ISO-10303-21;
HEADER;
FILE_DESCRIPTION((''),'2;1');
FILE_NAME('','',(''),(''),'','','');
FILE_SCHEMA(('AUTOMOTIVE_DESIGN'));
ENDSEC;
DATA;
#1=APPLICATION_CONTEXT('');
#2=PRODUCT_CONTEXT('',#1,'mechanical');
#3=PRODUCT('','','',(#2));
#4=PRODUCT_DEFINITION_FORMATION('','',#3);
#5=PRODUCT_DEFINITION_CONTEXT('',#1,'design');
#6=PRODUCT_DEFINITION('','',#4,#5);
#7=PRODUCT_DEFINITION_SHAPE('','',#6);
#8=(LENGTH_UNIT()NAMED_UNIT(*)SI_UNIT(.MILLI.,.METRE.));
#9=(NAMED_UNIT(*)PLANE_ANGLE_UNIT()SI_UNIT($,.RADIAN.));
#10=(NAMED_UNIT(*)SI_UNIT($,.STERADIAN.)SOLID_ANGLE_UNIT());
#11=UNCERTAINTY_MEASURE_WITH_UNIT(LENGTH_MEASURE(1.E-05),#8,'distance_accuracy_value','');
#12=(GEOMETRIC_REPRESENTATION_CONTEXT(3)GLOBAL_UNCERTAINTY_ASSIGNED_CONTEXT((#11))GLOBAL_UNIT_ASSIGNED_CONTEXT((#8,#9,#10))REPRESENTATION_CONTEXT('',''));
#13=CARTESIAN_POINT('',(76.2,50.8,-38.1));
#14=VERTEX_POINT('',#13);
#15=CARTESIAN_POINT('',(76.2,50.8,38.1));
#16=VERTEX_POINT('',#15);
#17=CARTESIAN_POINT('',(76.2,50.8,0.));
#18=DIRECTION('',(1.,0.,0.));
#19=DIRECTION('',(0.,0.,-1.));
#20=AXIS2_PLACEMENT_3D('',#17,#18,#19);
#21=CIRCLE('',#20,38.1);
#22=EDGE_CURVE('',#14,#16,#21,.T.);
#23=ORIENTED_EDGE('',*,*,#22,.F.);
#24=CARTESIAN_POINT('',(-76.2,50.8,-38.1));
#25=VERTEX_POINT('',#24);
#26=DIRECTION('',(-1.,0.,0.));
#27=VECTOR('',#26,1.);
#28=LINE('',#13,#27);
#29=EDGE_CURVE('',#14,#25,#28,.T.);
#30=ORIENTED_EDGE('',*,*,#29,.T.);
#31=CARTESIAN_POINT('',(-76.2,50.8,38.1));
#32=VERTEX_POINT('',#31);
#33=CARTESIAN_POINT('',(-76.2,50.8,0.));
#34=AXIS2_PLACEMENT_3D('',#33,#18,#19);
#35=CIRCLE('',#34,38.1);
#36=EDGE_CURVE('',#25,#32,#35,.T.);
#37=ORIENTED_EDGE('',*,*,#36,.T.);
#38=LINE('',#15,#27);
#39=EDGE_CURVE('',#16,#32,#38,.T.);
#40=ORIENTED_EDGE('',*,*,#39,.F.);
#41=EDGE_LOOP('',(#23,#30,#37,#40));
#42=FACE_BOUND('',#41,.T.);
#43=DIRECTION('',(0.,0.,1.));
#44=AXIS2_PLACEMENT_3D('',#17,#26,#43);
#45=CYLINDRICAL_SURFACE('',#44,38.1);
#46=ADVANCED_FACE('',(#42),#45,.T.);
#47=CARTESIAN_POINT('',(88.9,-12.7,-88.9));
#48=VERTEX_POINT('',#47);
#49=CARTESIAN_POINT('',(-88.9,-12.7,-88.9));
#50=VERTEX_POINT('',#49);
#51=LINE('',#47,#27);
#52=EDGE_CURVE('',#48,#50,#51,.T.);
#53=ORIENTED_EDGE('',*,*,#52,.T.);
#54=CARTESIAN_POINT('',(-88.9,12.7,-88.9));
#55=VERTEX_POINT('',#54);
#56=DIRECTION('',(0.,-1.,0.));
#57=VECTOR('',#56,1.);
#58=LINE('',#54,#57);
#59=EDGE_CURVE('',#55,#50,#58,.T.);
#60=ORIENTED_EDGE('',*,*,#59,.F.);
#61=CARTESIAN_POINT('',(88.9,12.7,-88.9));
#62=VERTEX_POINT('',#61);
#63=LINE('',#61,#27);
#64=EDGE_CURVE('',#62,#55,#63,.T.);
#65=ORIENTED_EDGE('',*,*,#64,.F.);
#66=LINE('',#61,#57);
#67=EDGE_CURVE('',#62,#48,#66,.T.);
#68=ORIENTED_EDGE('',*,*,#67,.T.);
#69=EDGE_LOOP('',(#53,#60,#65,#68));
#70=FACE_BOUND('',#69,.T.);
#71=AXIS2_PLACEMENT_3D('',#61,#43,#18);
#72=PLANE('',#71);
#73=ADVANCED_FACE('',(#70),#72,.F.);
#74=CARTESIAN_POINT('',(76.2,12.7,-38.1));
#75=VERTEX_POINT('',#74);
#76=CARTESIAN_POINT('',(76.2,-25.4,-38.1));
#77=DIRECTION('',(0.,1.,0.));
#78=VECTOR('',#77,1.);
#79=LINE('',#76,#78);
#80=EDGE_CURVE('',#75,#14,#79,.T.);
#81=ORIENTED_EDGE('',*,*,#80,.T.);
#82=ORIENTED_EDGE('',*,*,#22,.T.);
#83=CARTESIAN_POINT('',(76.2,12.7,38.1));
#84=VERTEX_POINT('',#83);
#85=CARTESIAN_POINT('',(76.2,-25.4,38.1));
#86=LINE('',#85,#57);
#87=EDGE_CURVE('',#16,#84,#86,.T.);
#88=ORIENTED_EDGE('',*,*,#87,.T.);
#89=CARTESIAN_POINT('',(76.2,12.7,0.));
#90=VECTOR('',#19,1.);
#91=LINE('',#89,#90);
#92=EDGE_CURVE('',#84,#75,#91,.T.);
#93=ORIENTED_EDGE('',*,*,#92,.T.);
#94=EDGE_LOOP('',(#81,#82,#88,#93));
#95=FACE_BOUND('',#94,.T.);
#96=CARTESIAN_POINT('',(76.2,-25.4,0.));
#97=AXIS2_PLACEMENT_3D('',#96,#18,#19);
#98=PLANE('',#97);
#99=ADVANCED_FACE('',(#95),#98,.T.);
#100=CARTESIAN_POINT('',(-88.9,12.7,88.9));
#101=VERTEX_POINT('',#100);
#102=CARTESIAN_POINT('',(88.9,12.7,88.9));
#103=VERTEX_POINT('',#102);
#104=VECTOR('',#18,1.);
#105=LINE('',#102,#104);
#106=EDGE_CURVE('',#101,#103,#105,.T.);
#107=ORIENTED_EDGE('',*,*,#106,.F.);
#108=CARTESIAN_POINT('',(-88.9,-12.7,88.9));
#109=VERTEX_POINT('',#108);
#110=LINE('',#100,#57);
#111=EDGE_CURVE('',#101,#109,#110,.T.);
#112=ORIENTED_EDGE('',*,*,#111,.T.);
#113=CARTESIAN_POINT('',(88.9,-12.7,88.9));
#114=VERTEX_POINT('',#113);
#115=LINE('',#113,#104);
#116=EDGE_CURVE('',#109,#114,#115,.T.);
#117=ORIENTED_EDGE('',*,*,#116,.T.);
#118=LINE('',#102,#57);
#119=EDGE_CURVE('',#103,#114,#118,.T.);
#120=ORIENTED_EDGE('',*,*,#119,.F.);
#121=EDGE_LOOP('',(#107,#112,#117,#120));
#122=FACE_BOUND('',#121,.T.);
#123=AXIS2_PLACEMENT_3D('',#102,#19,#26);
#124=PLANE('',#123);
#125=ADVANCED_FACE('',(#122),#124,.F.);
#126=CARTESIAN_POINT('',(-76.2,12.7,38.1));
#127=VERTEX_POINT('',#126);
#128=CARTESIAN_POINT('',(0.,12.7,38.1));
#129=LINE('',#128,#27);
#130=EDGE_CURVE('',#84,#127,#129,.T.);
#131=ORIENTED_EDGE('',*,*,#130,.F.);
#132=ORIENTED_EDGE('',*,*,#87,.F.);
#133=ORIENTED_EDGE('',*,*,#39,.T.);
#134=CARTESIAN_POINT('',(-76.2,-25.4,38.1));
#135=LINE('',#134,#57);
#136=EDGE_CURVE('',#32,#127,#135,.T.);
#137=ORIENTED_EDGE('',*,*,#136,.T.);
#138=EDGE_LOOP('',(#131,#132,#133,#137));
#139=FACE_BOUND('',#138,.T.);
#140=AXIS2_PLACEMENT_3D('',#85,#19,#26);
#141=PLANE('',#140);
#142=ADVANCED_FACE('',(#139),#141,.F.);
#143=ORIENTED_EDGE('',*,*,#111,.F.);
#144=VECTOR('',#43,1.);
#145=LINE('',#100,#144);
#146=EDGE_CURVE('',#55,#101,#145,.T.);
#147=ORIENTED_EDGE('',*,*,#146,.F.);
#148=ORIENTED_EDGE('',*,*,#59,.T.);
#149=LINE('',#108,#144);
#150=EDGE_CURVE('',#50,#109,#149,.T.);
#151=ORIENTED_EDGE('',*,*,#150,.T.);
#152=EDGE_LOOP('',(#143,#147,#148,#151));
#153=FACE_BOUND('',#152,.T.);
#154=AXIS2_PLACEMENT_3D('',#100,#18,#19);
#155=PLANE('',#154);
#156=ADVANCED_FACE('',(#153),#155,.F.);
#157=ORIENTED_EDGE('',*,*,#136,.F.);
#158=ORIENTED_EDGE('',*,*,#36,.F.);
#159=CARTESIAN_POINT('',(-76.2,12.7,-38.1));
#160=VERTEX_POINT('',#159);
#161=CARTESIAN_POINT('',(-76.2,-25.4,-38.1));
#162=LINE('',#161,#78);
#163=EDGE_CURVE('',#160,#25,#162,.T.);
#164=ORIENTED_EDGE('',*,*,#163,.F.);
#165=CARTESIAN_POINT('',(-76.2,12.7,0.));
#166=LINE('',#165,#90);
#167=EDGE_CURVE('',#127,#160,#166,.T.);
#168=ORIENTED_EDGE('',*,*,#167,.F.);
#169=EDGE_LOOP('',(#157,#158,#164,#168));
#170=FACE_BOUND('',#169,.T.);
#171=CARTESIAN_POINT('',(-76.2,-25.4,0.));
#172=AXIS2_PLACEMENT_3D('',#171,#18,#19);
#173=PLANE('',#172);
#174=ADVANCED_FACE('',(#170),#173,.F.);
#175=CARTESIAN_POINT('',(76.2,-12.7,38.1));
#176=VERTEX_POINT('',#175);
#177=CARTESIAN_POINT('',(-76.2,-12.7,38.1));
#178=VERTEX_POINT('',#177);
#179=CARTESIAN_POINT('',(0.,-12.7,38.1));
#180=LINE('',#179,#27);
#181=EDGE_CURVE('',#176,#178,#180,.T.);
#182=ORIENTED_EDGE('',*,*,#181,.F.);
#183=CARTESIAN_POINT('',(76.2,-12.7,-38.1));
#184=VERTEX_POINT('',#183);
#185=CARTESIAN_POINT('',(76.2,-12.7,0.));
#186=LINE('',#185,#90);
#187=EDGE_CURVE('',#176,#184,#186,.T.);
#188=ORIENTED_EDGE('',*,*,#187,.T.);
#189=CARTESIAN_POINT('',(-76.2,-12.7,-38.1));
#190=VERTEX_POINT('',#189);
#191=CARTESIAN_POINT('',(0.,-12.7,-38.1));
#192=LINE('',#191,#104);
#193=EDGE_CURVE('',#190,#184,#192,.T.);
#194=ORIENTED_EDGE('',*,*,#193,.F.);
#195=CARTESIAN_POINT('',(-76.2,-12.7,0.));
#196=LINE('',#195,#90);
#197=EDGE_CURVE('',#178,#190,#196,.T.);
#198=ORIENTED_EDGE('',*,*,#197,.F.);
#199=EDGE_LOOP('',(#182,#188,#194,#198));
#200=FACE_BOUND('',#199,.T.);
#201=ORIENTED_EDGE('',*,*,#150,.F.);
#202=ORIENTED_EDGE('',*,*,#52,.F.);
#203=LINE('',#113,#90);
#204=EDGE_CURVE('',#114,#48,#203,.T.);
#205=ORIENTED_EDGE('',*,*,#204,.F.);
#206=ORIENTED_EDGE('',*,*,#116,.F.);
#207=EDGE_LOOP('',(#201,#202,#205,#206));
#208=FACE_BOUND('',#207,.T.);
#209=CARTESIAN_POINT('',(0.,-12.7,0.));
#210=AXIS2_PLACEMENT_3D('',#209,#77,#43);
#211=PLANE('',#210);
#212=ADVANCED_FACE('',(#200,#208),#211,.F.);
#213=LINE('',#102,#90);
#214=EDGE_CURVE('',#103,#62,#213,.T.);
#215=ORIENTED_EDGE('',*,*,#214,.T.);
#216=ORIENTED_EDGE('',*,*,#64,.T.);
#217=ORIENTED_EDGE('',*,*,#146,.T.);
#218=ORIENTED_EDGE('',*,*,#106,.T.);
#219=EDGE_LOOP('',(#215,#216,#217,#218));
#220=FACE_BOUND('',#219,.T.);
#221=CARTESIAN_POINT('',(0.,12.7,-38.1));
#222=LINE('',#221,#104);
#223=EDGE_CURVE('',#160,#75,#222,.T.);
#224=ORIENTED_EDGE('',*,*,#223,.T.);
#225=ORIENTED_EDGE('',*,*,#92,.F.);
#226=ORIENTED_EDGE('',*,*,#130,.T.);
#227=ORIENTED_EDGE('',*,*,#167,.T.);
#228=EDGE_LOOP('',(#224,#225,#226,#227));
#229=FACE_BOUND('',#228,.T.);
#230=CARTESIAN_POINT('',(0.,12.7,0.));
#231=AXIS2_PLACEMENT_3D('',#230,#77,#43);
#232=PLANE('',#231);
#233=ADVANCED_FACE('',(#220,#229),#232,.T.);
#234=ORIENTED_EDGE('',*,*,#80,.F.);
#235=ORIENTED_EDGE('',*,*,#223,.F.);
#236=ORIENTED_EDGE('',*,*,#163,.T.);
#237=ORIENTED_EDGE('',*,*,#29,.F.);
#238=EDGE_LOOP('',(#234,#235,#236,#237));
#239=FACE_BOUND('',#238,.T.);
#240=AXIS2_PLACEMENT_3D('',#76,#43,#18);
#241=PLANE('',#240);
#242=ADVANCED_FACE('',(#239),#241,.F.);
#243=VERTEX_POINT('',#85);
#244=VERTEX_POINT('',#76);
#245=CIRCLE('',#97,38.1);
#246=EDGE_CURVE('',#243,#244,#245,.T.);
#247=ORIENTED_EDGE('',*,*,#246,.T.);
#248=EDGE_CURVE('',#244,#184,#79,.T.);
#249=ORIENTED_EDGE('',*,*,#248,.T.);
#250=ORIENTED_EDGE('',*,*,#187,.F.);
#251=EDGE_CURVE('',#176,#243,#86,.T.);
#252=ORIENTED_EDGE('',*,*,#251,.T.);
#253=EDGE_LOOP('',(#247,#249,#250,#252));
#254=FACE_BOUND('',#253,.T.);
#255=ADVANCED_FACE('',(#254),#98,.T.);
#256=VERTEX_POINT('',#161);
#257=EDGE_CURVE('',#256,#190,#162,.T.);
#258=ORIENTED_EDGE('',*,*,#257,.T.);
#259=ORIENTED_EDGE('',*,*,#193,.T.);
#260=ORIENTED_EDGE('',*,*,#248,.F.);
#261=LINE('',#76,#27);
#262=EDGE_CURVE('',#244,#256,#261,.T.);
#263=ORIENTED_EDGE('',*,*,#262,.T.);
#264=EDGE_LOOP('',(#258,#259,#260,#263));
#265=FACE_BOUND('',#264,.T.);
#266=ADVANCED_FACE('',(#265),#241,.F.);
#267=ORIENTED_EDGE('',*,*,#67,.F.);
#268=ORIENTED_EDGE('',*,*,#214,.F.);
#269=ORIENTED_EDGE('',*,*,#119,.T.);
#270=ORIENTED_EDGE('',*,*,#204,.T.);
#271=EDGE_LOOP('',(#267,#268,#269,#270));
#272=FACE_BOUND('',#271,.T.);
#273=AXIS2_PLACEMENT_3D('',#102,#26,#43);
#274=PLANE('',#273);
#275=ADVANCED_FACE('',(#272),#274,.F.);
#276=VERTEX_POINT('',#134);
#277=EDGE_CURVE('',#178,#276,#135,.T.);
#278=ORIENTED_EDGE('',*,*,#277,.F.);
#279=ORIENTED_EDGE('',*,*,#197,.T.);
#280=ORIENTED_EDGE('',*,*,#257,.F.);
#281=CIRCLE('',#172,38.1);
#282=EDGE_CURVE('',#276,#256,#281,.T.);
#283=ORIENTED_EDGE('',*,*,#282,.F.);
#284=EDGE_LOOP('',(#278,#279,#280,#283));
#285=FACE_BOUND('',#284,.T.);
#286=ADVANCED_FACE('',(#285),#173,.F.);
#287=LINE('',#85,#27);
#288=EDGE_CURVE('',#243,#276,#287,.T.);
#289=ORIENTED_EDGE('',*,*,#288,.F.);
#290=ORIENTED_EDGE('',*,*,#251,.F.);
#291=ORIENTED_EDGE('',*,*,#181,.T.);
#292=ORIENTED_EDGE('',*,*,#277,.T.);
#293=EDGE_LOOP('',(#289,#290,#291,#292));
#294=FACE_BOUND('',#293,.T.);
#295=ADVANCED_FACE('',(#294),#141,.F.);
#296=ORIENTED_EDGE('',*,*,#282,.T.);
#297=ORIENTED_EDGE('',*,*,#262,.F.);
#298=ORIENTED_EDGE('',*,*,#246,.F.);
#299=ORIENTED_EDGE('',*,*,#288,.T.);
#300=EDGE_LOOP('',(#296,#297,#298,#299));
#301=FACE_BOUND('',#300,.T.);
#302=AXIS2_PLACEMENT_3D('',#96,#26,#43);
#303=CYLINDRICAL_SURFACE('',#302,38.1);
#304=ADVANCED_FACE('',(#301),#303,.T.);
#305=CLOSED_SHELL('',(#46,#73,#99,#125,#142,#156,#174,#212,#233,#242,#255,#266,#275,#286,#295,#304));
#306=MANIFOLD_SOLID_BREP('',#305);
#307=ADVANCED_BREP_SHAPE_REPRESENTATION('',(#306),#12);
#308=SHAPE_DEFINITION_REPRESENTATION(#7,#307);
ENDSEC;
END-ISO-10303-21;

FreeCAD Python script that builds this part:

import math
import FreeCAD as App
import Part
import Sketcher
Q = App.Units.Quantity

doc = App.newDocument("Part")
body = doc.addObject("PartDesign::Body", "Body")

# Sketch on XZ plane
sketch1 = doc.addObject("Sketcher::SketchObject", "Sketch")
body.addObject(sketch1)
sketch1.AttachmentSupport = (doc.XZ_Plane, [""])
sketch1.MapMode = "FlatFace"
sketch1.addGeometry(Part.LineSegment(App.Vector(-89, -89, 0), App.Vector(-89, 89, 0)), False)
sketch1.addGeometry(Part.LineSegment(App.Vector(-89, 89, 0), App.Vector(89, 89, 0)), False)
sketch1.addGeometry(Part.LineSegment(App.Vector(89, 89, 0), App.Vector(89, -89, 0)), False)
sketch1.addGeometry(Part.LineSegment(App.Vector(89, -89, 0), App.Vector(-89, -89, 0)), False)
sketch1.addConstraint(Sketcher.Constraint("Coincident", 0, 2, 1, 1))
sketch1.addConstraint(Sketcher.Constraint("Coincident", 1, 2, 2, 1))
sketch1.addConstraint(Sketcher.Constraint("Coincident", 2, 2, 3, 1))
sketch1.addConstraint(Sketcher.Constraint("Coincident", 3, 2, 0, 1))
sketch1.addConstraint(Sketcher.Constraint("Vertical", 0))
sketch1.addConstraint(Sketcher.Constraint("Horizontal", 1))
sketch1.addConstraint(Sketcher.Constraint("Vertical", 2))
sketch1.addConstraint(Sketcher.Constraint("Horizontal", 3))
sketch1.addConstraint(Sketcher.Constraint("Symmetric", 0, 2, 2, 2, -1, 1))
sketch1.addConstraint(Sketcher.Constraint("Equal", 3, 0))
sketch1.addConstraint(Sketcher.Constraint("DistanceX", 1, 1, 1, 2, Q("7 in")))
pad1 = doc.addObject("PartDesign::Pad", "Pad")
body.addObject(pad1)
pad1.Profile = sketch1
pad1.Length = Q("1 in")
pad1.Midplane = True

# Sketch on YZ plane
sketch2 = doc.addObject("Sketcher::SketchObject", "Sketch001")
body.addObject(sketch2)
sketch2.AttachmentSupport = (doc.YZ_Plane, [""])
sketch2.MapMode = "FlatFace"
sketch2.addGeometry(Part.LineSegment(App.Vector(51, 38, 0), App.Vector(-25, 38, 0)), False)
sketch2.addGeometry(Part.ArcOfCircle(Part.Circle(App.Vector(-25, 0, 0), App.Vector(0, 0, 1), 38), math.radians(90), math.radians(270)), False)
sketch2.addGeometry(Part.LineSegment(App.Vector(-25, -38, 0), App.Vector(51, -38, 0)), False)
sketch2.addGeometry(Part.ArcOfCircle(Part.Circle(App.Vector(51, 0, 0), App.Vector(0, 0, 1), 38), math.radians(-90), math.radians(90)), False)
sketch2.addConstraint(Sketcher.Constraint("Tangent", 0, 2, 1, 1))
sketch2.addConstraint(Sketcher.Constraint("Tangent", 1, 2, 2, 1))
sketch2.addConstraint(Sketcher.Constraint("Tangent", 2, 2, 3, 1))
sketch2.addConstraint(Sketcher.Constraint("Tangent", 3, 2, 0, 1))
sketch2.addConstraint(Sketcher.Constraint("Horizontal", 0))
sketch2.addConstraint(Sketcher.Constraint("Horizontal", 2))
sketch2.addConstraint(Sketcher.Constraint("PointOnObject", 1, 3, -1))
sketch2.addConstraint(Sketcher.Constraint("Radius", 1, Q("1.5 in")))
sketch2.addConstraint(Sketcher.Constraint("DistanceX", 0, 2, 0, 1, Q("3 in")))
sketch2.addConstraint(Sketcher.Constraint("DistanceX", 1, 3, -1, 1, Q("1 in")))
pad2 = doc.addObject("PartDesign::Pad", "Pad001")
body.addObject(pad2)
pad2.Profile = sketch2
pad2.Length = Q("6 in")
pad2.Midplane = True

doc.recompute()
